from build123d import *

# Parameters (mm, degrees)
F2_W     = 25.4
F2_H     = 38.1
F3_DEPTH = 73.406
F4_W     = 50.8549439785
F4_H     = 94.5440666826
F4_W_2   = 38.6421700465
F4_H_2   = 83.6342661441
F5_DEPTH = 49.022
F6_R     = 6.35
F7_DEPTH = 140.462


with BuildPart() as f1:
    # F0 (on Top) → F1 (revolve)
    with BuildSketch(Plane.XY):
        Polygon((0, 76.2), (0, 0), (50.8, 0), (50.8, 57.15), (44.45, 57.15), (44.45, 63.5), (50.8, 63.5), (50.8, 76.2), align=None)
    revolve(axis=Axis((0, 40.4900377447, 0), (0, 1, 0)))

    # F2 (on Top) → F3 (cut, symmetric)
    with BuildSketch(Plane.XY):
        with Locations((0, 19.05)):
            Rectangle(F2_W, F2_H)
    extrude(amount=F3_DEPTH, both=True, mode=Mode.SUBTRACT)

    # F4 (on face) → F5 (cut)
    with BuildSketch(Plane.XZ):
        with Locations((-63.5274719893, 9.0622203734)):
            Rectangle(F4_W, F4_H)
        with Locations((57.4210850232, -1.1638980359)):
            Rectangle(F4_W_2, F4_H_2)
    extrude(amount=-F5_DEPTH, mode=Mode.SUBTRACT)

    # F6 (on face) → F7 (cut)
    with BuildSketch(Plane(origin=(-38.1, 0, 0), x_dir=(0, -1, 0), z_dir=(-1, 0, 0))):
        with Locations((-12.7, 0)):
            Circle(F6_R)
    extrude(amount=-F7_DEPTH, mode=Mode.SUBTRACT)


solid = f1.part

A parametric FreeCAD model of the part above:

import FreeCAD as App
import Part
import Sketcher
from FreeCAD import Vector
Q = App.Units.Quantity


def add_polygon(sketch, points):
    """Adds a closed chain of lines whose ends are joined by coincident constraints."""
    first, n = sketch.GeometryCount, len(points)
    for a, b in zip(points, points[1:] + points[:1]):
        sketch.addGeometry(Part.LineSegment(App.Vector(*a, 0), App.Vector(*b, 0)), False)
    for i in range(n):
        sketch.addConstraint(Sketcher.Constraint("Coincident", first + i, 2, first + (i + 1) % n, 1))

doc = App.newDocument("Part")
body = doc.addObject("PartDesign::Body", "Body")

# Sketch on XY plane
sketch1 = body.newObject("Sketcher::SketchObject", "Sketch")
sketch1.AttachmentSupport = (doc.getObject("XY_Plane"), [""])
sketch1.MapMode = "FlatFace"
add_polygon(sketch1, [(0, 76.2), (0, 0), (50.8, 0), (50.8, 57.15), (44.45, 57.15), (44.45, 63.5), (50.8, 63.5), (50.8, 76.2)])  # lines 0-7
sketch1.addConstraint([
    Sketcher.Constraint("Vertical", 0),
    Sketcher.Constraint("Horizontal", 1),
    Sketcher.Constraint("Vertical", 2),
    Sketcher.Constraint("Horizontal", 3),
    Sketcher.Constraint("Vertical", 4),
    Sketcher.Constraint("Horizontal", 5),
    Sketcher.Constraint("Vertical", 6),
    Sketcher.Constraint("Horizontal", 7),
    Sketcher.Constraint("Coincident", 0, 2, -1, 1),
    Sketcher.Constraint("Vertical", 2, 2, 5, 2),
    Sketcher.Constraint("Equal", 5, 4),
    Sketcher.Constraint("DistanceX", 1, 1, 1, 2, Q("2 in")),
    Sketcher.Constraint("DistanceY", 0, 2, 0, 1, Q("3 in")),
    Sketcher.Constraint("DistanceY", 6, 1, 6, 2, Q("0.5 in")),
    Sketcher.Constraint("DistanceX", 3, 2, 3, 1, Q("0.25 in")),
])
revolution = body.newObject("PartDesign::Revolution", "Revolution")
revolution.Profile = sketch1
revolution.ReferenceAxis = (sketch1, ["V_Axis"])
revolution.Angle = 360

# Sketch on XY plane
sketch2 = body.newObject("Sketcher::SketchObject", "Sketch001")
sketch2.AttachmentSupport = (doc.getObject("XY_Plane"), [""])
sketch2.MapMode = "FlatFace"
add_polygon(sketch2, [(-12.7, 38.1), (-12.7, 0), (12.7, 0), (12.7, 38.1)])  # lines 0-3
sketch2.addConstraint([
    Sketcher.Constraint("Vertical", 0),
    Sketcher.Constraint("Horizontal", 1),
    Sketcher.Constraint("Vertical", 2),
    Sketcher.Constraint("Horizontal", 3),
    Sketcher.Constraint("Symmetric", 0, 2, 1, 2, -1, 1),
    Sketcher.Constraint("DistanceX", 1, 1, 1, 2, Q("1 in")),
    Sketcher.Constraint("DistanceY", 0, 2, 0, 1, Q("1.5 in")),
])
pocket1 = body.newObject("PartDesign::Pocket", "Pocket")
pocket1.Profile = sketch2
pocket1.Length = Q("5.78 in")
pocket1.Midplane = True

# Sketch on XZ plane
sketch3 = body.newObject("Sketcher::SketchObject", "Sketch002")
sketch3.AttachmentSupport = (doc.getObject("XZ_Plane"), [""])
sketch3.MapMode = "FlatFace"
add_polygon(sketch3, [(-88.954944, 56.334254), (-88.954944, -38.209813), (-38.1, -38.209813), (-38.1, 56.334254)])  # lines 0-3
add_polygon(sketch3, [(38.1, 40.653235), (38.1, -42.981031), (76.74217, -42.981031), (76.74217, 40.653235)])  # lines 4-7
sketch3.addConstraint([
    Sketcher.Constraint("Vertical", 0),
    Sketcher.Constraint("Horizontal", 1),
    Sketcher.Constraint("Vertical", 2),
    Sketcher.Constraint("Horizontal", 3),
    Sketcher.Constraint("Vertical", 4),
    Sketcher.Constraint("Horizontal", 5),
    Sketcher.Constraint("Vertical", 6),
    Sketcher.Constraint("Horizontal", 7),
    Sketcher.Constraint("DistanceX", 1, 2, 4, 2, Q("3 in")),
    Sketcher.Constraint("DistanceX", 1, 2, -1, 1, Q("1.5 in")),
    Sketcher.Constraint("DistanceX", 5, 1, 5, 2, 38.64217),
    Sketcher.Constraint("DistanceX", 1, 1, 1, 2, 50.854944),
    Sketcher.Constraint("DistanceY", 0, 2, 0, 1, 94.544067),
    Sketcher.Constraint("DistanceY", 4, 2, 4, 1, 83.634266),
    Sketcher.Constraint("DistanceY", 4, 2, -1, 1, 42.981031),
    Sketcher.Constraint("DistanceY", 4, 2, 1, 2, 4.771218),
])
pocket2 = body.newObject("PartDesign::Pocket", "Pocket001")
pocket2.Profile = sketch3
pocket2.Length = Q("1.93 in")

# Sketch on YZ plane
sketch4 = body.newObject("Sketcher::SketchObject", "Sketch003")
sketch4.AttachmentSupport = (doc.getObject("YZ_Plane"), [""])
sketch4.MapMode = "FlatFace"
sketch4.AttachmentOffset = App.Placement(Vector(0, 0, -1.5 * 25.4), App.Rotation())
sketch4.addGeometry(Part.Circle(Vector(12.7, 0, 0), Vector(0, 0, 1), 6.35), False)
sketch4.addConstraint([
    Sketcher.Constraint("PointOnObject", 0, 3, -1),
    Sketcher.Constraint("Diameter", 0, Q("0.5 in")),
    Sketcher.Constraint("DistanceX", -1, 1, 0, 3, Q("0.5 in")),
])
pocket3 = body.newObject("PartDesign::Pocket", "Pocket002")
pocket3.Profile = sketch4
pocket3.Length = Q("5.53 in")
pocket3.Reversed = True

doc.recompute()
